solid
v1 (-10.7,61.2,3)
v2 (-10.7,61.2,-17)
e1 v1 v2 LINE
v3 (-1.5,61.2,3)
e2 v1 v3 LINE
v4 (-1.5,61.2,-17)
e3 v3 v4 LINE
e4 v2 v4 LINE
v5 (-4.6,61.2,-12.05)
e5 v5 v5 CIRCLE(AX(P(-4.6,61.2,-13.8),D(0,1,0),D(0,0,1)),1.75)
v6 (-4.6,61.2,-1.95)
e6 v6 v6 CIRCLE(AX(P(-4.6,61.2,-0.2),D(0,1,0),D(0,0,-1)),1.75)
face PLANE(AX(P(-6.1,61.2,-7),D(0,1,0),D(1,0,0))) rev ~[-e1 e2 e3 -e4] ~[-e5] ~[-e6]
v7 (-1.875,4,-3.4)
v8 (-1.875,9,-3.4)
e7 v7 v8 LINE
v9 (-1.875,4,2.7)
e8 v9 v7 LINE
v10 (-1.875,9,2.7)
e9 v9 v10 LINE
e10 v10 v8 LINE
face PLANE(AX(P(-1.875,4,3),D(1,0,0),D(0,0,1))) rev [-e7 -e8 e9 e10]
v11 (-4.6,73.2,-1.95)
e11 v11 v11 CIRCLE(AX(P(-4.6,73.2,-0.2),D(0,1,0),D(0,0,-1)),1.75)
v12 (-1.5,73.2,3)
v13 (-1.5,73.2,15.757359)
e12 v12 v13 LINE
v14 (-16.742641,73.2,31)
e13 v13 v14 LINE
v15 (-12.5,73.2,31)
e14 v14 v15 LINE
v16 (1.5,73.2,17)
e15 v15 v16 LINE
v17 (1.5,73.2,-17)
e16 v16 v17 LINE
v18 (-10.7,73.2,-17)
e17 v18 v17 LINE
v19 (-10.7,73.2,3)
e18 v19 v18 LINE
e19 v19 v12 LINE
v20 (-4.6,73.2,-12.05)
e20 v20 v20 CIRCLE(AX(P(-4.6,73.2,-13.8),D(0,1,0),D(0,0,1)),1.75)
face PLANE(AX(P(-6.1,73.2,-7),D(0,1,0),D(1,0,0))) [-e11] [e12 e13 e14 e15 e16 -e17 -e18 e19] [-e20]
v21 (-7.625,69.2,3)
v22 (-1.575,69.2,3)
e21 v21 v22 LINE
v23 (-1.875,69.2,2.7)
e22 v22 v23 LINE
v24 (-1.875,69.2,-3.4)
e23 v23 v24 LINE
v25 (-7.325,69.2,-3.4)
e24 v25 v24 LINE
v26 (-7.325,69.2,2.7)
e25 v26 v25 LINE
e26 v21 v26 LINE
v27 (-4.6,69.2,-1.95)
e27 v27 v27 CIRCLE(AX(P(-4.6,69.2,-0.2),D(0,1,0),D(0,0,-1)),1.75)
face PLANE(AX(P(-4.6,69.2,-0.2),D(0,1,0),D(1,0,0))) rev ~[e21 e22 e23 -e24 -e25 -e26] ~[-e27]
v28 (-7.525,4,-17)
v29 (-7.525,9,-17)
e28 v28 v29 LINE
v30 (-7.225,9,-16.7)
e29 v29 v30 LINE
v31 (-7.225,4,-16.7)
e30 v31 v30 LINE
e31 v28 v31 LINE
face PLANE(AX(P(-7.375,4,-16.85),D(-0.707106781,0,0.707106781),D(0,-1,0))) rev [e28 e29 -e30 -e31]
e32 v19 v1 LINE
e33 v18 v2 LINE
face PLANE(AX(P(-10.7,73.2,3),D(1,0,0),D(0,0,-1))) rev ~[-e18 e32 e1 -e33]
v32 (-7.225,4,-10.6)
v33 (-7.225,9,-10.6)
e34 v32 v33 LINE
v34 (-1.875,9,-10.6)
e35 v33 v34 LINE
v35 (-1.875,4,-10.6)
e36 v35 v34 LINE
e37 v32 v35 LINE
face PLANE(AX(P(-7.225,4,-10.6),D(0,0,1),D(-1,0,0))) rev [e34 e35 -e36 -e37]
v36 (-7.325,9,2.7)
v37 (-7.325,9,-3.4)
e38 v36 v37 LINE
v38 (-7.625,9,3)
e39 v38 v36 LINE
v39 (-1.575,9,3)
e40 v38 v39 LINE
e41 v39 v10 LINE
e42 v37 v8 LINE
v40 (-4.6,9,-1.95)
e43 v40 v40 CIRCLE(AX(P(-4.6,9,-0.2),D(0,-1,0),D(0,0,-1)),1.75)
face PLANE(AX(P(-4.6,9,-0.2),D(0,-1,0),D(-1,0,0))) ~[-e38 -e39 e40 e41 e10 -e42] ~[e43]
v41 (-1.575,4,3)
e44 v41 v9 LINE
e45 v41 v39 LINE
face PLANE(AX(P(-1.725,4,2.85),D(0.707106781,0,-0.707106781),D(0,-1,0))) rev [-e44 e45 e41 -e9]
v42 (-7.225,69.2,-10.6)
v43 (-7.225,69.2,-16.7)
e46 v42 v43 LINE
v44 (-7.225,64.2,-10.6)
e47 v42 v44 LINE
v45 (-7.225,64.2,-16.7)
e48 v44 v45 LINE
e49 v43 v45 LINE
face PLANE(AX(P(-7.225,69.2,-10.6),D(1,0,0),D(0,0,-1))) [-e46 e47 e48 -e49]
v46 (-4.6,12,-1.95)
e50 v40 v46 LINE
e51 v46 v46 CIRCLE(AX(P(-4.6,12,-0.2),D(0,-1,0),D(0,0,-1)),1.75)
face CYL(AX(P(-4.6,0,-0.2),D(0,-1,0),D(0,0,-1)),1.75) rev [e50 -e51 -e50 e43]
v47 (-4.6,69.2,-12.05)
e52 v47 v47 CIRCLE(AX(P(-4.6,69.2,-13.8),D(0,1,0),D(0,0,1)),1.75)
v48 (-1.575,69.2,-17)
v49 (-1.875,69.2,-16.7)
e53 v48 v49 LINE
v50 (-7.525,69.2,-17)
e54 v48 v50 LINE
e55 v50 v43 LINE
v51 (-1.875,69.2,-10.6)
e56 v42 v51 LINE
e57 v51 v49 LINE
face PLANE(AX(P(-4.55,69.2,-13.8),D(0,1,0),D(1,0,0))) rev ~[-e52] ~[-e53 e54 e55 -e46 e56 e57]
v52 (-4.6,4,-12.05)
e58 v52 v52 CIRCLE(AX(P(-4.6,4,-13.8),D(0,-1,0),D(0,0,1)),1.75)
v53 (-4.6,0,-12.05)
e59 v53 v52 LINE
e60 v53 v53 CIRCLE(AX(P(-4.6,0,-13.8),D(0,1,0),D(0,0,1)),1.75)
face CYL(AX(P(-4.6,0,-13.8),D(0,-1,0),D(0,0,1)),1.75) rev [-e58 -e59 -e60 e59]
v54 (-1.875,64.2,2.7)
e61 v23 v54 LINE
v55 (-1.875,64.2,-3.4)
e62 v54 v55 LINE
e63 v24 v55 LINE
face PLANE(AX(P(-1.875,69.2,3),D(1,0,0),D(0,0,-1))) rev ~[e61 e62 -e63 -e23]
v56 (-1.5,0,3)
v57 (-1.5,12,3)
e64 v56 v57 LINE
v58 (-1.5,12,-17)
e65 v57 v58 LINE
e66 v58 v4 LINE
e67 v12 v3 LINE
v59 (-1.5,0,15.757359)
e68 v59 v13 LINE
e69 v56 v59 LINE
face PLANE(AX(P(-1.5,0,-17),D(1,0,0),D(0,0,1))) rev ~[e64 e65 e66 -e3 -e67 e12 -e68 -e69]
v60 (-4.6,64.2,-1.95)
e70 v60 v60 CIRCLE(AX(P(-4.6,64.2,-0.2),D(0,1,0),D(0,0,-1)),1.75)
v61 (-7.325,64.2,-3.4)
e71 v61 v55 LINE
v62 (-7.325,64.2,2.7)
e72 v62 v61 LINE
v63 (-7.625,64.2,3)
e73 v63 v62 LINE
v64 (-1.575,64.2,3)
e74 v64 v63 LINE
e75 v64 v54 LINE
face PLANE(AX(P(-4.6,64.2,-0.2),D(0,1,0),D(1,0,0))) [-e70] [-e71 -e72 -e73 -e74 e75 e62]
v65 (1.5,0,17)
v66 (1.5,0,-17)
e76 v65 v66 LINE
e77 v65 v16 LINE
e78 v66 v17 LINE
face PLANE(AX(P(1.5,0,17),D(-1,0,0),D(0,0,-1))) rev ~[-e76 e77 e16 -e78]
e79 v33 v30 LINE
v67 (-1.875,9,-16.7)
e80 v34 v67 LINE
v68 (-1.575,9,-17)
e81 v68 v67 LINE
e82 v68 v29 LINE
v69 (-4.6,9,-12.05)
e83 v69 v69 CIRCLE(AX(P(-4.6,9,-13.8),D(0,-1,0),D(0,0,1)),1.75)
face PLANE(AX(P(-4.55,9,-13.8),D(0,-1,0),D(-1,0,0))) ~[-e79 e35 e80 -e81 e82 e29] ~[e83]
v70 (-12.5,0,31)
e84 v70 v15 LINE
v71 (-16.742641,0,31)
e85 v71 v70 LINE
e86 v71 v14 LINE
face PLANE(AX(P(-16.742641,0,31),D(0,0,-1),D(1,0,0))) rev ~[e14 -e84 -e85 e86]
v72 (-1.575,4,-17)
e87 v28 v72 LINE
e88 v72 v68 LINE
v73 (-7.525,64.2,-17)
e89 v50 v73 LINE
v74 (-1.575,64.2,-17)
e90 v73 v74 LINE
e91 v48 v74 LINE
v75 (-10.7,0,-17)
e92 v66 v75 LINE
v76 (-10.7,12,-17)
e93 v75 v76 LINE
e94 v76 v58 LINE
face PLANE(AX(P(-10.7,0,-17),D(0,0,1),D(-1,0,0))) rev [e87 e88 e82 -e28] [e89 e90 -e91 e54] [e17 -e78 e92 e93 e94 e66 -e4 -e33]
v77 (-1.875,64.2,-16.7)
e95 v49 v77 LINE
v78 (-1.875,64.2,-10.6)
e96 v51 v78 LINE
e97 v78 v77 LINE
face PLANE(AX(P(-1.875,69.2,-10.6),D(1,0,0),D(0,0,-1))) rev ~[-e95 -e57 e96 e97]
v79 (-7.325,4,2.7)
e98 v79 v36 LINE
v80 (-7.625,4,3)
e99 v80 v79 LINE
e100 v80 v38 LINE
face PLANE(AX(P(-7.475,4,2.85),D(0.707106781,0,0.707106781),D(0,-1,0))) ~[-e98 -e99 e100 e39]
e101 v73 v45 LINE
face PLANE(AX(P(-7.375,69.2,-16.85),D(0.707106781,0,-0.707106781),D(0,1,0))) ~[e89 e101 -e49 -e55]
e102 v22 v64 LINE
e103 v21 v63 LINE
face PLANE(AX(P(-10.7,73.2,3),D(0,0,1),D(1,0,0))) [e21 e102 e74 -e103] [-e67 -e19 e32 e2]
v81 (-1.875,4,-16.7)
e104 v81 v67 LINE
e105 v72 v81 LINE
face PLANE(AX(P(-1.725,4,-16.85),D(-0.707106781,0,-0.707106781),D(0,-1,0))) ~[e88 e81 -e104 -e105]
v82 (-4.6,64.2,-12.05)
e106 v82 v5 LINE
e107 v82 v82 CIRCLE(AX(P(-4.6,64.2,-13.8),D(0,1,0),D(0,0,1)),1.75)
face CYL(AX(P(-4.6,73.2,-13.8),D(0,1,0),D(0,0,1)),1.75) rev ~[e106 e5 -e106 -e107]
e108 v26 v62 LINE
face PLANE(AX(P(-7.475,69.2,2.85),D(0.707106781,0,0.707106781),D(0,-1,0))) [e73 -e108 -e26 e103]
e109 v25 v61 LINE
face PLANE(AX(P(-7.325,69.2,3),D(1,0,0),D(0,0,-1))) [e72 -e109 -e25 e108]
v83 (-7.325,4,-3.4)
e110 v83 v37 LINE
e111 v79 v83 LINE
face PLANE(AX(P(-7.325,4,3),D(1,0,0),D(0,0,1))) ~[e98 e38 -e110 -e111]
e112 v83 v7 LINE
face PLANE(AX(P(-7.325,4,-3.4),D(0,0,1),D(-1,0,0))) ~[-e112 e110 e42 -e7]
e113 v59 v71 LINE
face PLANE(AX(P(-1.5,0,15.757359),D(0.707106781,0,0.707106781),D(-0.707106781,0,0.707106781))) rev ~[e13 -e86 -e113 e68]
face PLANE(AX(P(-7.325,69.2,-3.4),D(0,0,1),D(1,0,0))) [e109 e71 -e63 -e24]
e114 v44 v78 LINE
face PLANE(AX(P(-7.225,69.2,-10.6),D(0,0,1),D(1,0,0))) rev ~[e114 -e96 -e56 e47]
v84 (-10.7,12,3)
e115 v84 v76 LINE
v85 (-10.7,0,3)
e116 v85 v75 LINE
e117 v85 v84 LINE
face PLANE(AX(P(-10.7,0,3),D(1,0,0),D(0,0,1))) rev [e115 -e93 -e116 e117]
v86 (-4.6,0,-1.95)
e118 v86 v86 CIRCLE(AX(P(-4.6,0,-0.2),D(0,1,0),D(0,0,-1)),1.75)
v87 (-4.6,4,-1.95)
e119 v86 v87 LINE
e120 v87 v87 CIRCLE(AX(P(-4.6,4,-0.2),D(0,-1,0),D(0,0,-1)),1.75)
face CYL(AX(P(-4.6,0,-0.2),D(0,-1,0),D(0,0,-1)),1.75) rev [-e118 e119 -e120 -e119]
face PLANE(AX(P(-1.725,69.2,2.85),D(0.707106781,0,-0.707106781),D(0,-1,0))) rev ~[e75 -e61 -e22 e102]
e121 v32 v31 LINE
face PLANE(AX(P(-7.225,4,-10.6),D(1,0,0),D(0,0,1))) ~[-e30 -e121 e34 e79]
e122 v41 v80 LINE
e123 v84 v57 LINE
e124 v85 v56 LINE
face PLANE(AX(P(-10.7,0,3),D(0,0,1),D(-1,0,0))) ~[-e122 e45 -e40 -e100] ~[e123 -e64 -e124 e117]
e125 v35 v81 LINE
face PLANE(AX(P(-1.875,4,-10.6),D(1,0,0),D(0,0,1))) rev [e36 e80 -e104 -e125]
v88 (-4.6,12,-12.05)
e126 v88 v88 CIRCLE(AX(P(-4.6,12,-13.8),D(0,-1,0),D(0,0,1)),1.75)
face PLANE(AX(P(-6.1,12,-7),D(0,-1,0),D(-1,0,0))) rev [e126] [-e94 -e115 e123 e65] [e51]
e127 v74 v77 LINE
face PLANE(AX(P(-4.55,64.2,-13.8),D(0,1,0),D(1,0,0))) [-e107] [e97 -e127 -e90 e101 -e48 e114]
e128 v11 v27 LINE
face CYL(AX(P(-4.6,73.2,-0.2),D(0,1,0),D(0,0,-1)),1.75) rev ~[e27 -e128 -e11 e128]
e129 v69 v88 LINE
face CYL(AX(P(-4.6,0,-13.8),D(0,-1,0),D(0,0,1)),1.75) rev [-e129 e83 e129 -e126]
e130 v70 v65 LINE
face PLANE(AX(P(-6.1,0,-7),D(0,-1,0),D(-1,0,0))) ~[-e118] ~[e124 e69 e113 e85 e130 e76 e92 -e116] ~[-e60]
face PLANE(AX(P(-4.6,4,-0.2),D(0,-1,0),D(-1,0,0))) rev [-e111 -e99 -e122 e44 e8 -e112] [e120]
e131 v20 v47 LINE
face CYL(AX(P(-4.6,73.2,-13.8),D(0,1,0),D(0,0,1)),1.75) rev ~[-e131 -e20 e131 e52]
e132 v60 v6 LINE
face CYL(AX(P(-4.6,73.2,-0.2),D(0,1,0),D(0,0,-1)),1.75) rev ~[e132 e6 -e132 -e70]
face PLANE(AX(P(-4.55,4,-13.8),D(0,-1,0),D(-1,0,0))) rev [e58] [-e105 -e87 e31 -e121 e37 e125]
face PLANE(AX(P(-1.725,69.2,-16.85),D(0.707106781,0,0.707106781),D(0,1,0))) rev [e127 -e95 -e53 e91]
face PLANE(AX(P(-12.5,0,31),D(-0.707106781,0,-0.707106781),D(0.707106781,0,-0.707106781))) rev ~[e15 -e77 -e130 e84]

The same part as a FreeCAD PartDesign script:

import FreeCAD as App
import Part
import Sketcher

V = App.Vector
Q = App.Units.Quantity


def edges_at(feature, points):
    """Names of the edges that pass closest to the given points."""
    edges = feature.Shape.Edges
    near = lambda p: min(range(len(edges)), key=lambda i: edges[i].distToShape(Part.Vertex(*p))[0])
    return sorted({f"Edge{near(p) + 1}" for p in points})


def add_polygon(sketch, points):
    """Adds a closed chain of lines whose ends are joined by coincident constraints."""
    first, n = sketch.GeometryCount, len(points)
    for a, b in zip(points, points[1:] + points[:1]):
        sketch.addGeometry(Part.LineSegment(App.Vector(*a, 0), App.Vector(*b, 0)), False)
    for i in range(n):
        sketch.addConstraint(Sketcher.Constraint("Coincident", first + i, 2, first + (i + 1) % n, 1))

doc = App.newDocument("Part")
params = doc.addObject("Spreadsheet::Sheet", "Params")
for row, (alias, value) in enumerate([
    ("sketch1_width", "3 mm"),
    ("sketch1_height", "34 mm"),
    ("pad1_length", "73.2 mm"),
    ("sketch2_height", "20 mm"),
    ("sketch2_width", "9.2 mm"),
    ("pad2_length", "12 mm"),
    ("sketch3_diameter", "3.5 mm"),
    ("pocket1_length", "20 mm"),
    ("sketch4_height", "6.4 mm"),
    ("sketch4_width", "5.45 mm"),
    ("sketch4_width2", "5.35 mm"),
    ("pocket2_length", "5 mm"),
    ("chamfer_size", "0.3 mm"),
], start=1):
    params.set(f"A{row}", alias)
    params.set(f"B{row}", "=" + value)
    params.setAlias(f"B{row}", alias)

body = doc.addObject("PartDesign::Body", "Body")

# Sketch on XZ plane
sketch1 = body.newObject("Sketcher::SketchObject", "Sketch")
sketch1.AttachmentSupport = (doc.getObject("XZ_Plane"), [""])
sketch1.MapMode = "FlatFace"
add_polygon(sketch1, [(-12.5, 31), (1.5, 17), (1.5, -17), (-1.5, -17), (-1.5, 15.757359), (-16.742641, 31)])  # lines 0-5
sketch1.addConstraint(Sketcher.Constraint("Vertical", 1))
sketch1.addConstraint(Sketcher.Constraint("Horizontal", 2))
sketch1.addConstraint(Sketcher.Constraint("Vertical", 3))
sketch1.addConstraint(Sketcher.Constraint("Horizontal", 5))
sketch1.addConstraint(Sketcher.Constraint("Symmetric", 0, 2, 2, 2, -1, 1))
sketch1.addConstraint(Sketcher.Constraint("Parallel", 0, 4))
sketch1.addConstraint(Sketcher.Constraint("DistanceX", 2, 2, 2, 1, 3.0))
sketch1.addConstraint(Sketcher.Constraint("DistanceY", 1, 2, 1, 1, 34.0))
sketch1.addConstraint(Sketcher.Constraint("Angle", 0, Q("-45 deg")))
sketch1.addConstraint(Sketcher.Constraint("DistanceY", -1, 1, 4, 2, 31.0))
sketch1.addConstraint(Sketcher.Constraint("DistanceX", 5, 1, 5, 2, 4.242641))
sketch1.setExpression("Constraints[12]", "Params.sketch1_width")
sketch1.setExpression("Constraints[13]", "Params.sketch1_height")
pad1 = body.newObject("PartDesign::Pad", "Pad")
pad1.Profile = sketch1
pad1.setExpression("Length", "Params.pad1_length")
pad1.Reversed = True

# Sketch on XZ plane
sketch2 = body.newObject("Sketcher::SketchObject", "Sketch001")
sketch2.AttachmentSupport = (doc.getObject("XZ_Plane"), [""])
sketch2.MapMode = "FlatFace"
sketch2.AttachmentOffset = App.Placement(V(0, 0, -73.2), App.Rotation())
add_polygon(sketch2, [(-10.7, -17), (-10.7, 3), (-1.5, 3), (-1.5, -17)])  # lines 0-3
sketch2.addConstraint(Sketcher.Constraint("Vertical", 0))
sketch2.addConstraint(Sketcher.Constraint("Horizontal", 1))
sketch2.addConstraint(Sketcher.Constraint("Vertical", 2))
sketch2.addConstraint(Sketcher.Constraint("Horizontal", 3))
sketch2.addConstraint(Sketcher.Constraint("DistanceY", 0, 1, 0, 2, 20.0))
sketch2.addConstraint(Sketcher.Constraint("DistanceX", 1, 1, 1, 2, 9.2))
sketch2.addConstraint(Sketcher.Constraint("DistanceY", -1, 1, 0, 2, 3.0))
sketch2.addConstraint(Sketcher.Constraint("DistanceX", 0, 2, -1, 1, 10.7))
sketch2.setExpression("Constraints[8]", "Params.sketch2_height")
sketch2.setExpression("Constraints[9]", "Params.sketch2_width")
pad2 = body.newObject("PartDesign::Pad", "Pad001")
pad2.Profile = sketch2
pad2.setExpression("Length", "Params.pad2_length")

# Sketch on XZ plane
sketch3 = body.newObject("Sketcher::SketchObject", "Sketch002")
sketch3.AttachmentSupport = (doc.getObject("XZ_Plane"), [""])
sketch3.MapMode = "FlatFace"
sketch3.AttachmentOffset = App.Placement(V(0, 0, -73.2), App.Rotation())
sketch3.addGeometry(Part.Circle(V(-4.6, -13.8, 0), V(0, 0, 1), 1.75), False)
sketch3.addGeometry(Part.Circle(V(-4.6, -0.2, 0), V(0, 0, 1), 1.75), False)
sketch3.addConstraint(Sketcher.Constraint("Equal", 0, 1))
sketch3.addConstraint(Sketcher.Constraint("Vertical", 0, 3, 1, 3))
sketch3.addConstraint(Sketcher.Constraint("Diameter", 0, 3.5))
sketch3.addConstraint(Sketcher.Constraint("DistanceX", 0, 3, -1, 1, 4.6))
sketch3.addConstraint(Sketcher.Constraint("DistanceY", 0, 3, -1, 1, 13.8))
sketch3.addConstraint(Sketcher.Constraint("DistanceY", 1, 3, -1, 1, 0.2))
sketch3.setExpression("Constraints[2]", "Params.sketch3_diameter")
pocket1 = body.newObject("PartDesign::Pocket", "Pocket")
pocket1.Profile = sketch3
pocket1.setExpression("Length", "Params.pocket1_length")
pocket1.Reversed = True

# Sketch on XZ plane
sketch4 = body.newObject("Sketcher::SketchObject", "Sketch003")
sketch4.AttachmentSupport = (doc.getObject("XZ_Plane"), [""])
sketch4.MapMode = "FlatFace"
sketch4.AttachmentOffset = App.Placement(V(0, 0, -69.2), App.Rotation())
add_polygon(sketch4, [(-7.325, -3.4), (-7.325, 3), (-1.875, 3), (-1.875, -3.4)])  # lines 0-3
add_polygon(sketch4, [(-7.225, -17), (-7.225, -10.6), (-1.875, -10.6), (-1.875, -17)])  # lines 4-7
sketch4.addConstraint(Sketcher.Constraint("Vertical", 0))
sketch4.addConstraint(Sketcher.Constraint("Horizontal", 1))
sketch4.addConstraint(Sketcher.Constraint("Vertical", 2))
sketch4.addConstraint(Sketcher.Constraint("Horizontal", 3))
sketch4.addConstraint(Sketcher.Constraint("Vertical", 4))
sketch4.addConstraint(Sketcher.Constraint("Horizontal", 5))
sketch4.addConstraint(Sketcher.Constraint("Vertical", 6))
sketch4.addConstraint(Sketcher.Constraint("Horizontal", 7))
sketch4.addConstraint(Sketcher.Constraint("Vertical", 2, 2, 5, 2))
sketch4.addConstraint(Sketcher.Constraint("Equal", 2, 4))
sketch4.addConstraint(Sketcher.Constraint("DistanceY", 0, 1, 0, 2, 6.4))
sketch4.addConstraint(Sketcher.Constraint("DistanceY", -1, 1, 0, 2, 3.0))
sketch4.addConstraint(Sketcher.Constraint("DistanceY", 6, 2, -1, 1, 17.0))
sketch4.addConstraint(Sketcher.Constraint("DistanceX", 1, 1, 1, 2, 5.45))
sketch4.addConstraint(Sketcher.Constraint("DistanceX", 5, 1, 5, 2, 5.35))
sketch4.addConstraint(Sketcher.Constraint("DistanceX", 0, 2, -1, 1, 7.325))
sketch4.setExpression("Constraints[18]", "Params.sketch4_height")
sketch4.setExpression("Constraints[21]", "Params.sketch4_width")
sketch4.setExpression("Constraints[22]", "Params.sketch4_width2")
pocket2 = body.newObject("PartDesign::Pocket", "Pocket001")
pocket2.Profile = sketch4
pocket2.setExpression("Length", "Params.pocket2_length")
pocket2.Reversed = True
doc.recompute()

datumplane = body.newObject("PartDesign::Plane", "DatumPlane")
datumplane.AttachmentSupport = (doc.getObject("XZ_Plane"), [""])
datumplane.MapMode = "FlatFace"
datumplane.AttachmentOffset = App.Placement(V(0, 0, -36.6), App.Rotation())
mirrored = body.newObject("PartDesign::Mirrored", "Mirrored")
mirrored.Originals = [pad2, pocket1, pocket2]
mirrored.MirrorPlane = (datumplane, [""])
body.Tip = mirrored
doc.recompute()

chamfer = body.newObject("PartDesign::Chamfer", "Chamfer")
chamfer.Base = (mirrored, edges_at(mirrored, [
    (-7.325, 6.5, 3),
    (-1.875, 6.5, 3),
    (-7.225, 6.5, -17),
    (-1.875, 6.5, -17),
    (-7.325, 66.7, 3),
    (-1.875, 66.7, 3),
    (-7.225, 66.7, -17),
    (-1.875, 66.7, -17),
]))
chamfer.setExpression("Size", "Params.chamfer_size")

doc.recompute()
